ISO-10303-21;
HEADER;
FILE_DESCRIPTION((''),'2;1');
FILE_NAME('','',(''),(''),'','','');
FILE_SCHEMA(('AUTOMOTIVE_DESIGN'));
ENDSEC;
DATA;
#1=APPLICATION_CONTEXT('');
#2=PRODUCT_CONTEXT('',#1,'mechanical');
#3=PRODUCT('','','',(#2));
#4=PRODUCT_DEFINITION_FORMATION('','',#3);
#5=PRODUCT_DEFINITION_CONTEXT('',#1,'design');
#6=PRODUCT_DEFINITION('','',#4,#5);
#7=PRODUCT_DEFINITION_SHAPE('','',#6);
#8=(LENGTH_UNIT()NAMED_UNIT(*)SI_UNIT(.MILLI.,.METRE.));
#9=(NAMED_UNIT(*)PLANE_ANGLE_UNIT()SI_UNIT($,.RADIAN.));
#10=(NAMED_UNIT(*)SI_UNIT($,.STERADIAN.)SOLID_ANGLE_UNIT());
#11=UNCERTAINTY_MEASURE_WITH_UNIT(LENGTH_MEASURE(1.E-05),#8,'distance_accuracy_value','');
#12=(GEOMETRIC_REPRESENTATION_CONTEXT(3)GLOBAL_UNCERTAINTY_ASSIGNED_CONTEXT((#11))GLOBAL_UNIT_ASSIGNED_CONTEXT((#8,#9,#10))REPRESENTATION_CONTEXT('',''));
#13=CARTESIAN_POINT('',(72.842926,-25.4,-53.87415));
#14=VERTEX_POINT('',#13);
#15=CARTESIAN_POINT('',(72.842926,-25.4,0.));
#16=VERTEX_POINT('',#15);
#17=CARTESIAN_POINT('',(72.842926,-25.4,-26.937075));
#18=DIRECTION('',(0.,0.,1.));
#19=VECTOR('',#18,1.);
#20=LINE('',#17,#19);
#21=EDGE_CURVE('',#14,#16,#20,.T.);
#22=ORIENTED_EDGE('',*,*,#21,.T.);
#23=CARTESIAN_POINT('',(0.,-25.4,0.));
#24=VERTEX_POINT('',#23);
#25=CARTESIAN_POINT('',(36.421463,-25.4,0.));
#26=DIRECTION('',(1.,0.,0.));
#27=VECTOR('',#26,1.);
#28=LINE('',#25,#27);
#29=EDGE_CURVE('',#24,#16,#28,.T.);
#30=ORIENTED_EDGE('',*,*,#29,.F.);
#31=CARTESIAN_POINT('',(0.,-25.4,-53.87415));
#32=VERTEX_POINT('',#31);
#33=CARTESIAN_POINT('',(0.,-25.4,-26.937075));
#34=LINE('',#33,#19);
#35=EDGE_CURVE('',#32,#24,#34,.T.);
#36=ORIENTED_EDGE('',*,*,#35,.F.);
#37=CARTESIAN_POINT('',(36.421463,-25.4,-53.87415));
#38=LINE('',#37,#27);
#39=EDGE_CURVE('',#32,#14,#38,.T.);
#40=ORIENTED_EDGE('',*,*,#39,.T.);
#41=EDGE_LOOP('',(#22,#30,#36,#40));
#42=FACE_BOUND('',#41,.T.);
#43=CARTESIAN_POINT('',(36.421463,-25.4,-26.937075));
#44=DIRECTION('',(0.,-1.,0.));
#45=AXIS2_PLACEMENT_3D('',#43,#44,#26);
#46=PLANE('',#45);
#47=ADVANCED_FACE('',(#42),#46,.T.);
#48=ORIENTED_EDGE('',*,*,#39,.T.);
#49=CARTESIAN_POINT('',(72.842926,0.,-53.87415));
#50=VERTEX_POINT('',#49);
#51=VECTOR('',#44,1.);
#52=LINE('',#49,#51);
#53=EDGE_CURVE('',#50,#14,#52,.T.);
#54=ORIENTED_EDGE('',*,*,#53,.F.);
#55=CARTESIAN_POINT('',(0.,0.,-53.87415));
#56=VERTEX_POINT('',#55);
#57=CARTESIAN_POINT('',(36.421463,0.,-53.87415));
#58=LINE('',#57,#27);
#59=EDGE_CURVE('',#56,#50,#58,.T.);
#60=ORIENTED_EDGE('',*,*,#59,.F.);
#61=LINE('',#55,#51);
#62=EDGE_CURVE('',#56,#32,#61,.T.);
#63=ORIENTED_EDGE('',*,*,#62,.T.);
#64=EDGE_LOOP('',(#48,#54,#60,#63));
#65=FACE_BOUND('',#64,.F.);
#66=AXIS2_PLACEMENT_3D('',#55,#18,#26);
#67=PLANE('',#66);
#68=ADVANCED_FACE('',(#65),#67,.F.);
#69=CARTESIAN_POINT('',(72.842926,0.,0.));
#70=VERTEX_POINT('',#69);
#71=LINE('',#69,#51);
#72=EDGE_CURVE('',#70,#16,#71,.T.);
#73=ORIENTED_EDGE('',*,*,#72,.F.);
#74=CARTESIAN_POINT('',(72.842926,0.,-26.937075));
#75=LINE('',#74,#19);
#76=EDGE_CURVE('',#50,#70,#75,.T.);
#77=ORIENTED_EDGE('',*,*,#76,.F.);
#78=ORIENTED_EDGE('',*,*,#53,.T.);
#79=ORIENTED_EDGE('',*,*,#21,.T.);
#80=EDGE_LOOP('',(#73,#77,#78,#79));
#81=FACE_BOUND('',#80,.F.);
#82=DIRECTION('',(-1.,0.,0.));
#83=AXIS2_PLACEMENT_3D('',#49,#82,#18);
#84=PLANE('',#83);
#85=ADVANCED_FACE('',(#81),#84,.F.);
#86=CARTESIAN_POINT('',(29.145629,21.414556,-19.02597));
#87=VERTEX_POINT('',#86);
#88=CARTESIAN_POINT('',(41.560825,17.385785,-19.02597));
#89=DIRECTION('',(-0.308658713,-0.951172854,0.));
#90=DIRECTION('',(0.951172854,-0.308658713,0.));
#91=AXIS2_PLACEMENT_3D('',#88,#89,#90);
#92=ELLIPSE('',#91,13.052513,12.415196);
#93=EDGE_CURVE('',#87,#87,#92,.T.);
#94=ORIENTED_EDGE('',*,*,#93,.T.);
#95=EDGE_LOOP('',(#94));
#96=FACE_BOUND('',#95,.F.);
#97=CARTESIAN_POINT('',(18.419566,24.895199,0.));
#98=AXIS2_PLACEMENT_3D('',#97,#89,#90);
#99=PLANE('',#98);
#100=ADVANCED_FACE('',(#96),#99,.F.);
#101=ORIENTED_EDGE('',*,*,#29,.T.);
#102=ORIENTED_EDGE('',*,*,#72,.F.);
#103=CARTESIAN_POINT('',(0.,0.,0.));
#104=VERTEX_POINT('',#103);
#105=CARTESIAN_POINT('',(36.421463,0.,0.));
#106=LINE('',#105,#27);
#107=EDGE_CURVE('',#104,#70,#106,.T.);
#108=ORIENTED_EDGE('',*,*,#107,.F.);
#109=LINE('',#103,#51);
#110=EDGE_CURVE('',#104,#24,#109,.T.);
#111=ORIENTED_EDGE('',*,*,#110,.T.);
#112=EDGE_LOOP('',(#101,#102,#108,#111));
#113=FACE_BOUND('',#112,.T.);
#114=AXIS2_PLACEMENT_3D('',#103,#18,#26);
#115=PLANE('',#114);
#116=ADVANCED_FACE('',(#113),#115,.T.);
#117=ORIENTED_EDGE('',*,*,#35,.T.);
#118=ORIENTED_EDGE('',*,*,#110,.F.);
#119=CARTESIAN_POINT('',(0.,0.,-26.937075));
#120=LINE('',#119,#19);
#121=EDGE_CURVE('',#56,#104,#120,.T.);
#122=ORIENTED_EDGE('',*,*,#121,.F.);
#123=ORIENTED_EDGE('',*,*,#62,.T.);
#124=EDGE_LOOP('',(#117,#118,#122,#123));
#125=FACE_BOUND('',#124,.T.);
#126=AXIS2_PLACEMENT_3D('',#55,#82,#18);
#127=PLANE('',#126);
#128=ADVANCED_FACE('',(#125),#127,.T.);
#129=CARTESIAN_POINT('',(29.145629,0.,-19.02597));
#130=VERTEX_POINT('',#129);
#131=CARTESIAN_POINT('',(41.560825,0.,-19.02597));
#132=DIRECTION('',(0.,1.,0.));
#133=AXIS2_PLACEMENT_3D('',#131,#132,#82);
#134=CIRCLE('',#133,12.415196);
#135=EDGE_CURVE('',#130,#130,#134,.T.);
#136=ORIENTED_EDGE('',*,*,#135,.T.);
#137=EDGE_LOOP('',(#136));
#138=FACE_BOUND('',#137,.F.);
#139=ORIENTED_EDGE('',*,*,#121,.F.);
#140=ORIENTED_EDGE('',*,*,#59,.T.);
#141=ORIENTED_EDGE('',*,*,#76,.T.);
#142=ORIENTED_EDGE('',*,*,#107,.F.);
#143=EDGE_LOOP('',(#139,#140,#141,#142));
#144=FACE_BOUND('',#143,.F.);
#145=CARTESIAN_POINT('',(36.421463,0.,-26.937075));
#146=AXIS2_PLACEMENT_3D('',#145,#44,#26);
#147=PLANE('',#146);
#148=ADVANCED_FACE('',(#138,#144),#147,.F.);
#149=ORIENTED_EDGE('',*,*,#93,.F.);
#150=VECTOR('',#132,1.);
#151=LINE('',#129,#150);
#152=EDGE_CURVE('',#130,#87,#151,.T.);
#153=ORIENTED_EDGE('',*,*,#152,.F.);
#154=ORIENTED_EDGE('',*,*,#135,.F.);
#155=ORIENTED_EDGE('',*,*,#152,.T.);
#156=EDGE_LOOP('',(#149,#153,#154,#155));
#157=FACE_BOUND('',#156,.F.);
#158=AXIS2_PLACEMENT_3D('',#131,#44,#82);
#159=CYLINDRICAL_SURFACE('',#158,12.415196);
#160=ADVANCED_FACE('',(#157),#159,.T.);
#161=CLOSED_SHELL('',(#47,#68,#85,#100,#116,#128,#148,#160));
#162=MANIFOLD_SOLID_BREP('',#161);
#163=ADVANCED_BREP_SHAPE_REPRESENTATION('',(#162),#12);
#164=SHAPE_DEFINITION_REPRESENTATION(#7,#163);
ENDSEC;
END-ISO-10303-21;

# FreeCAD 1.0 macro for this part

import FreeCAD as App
import Part
import Sketcher

V = App.Vector

doc = App.newDocument("Part")
params = doc.addObject("Spreadsheet::Sheet", "Params")
for row, (alias, value) in enumerate([
    ("pad1_length", "1 in"),
    ("pad2_length", "1 in"),
    ("pocket1_length", "1.58 in"),
], start=1):
    params.set(f"A{row}", alias)
    params.set(f"B{row}", "=" + value)
    params.setAlias(f"B{row}", alias)

body = doc.addObject("PartDesign::Body", "Body")

# Sketch on XZ plane
sketch1 = body.newObject("Sketcher::SketchObject", "Sketch")
sketch1.AttachmentSupport = (doc.getObject("XZ_Plane"), [""])
sketch1.MapMode = "FlatFace"
sketch1.addGeometry([
    Part.LineSegment(V(0, 0, 0), V(0, -53.87415, 0)),
    Part.LineSegment(V(0, -53.87415, 0), V(72.842926, -53.87415, 0)),
    Part.LineSegment(V(72.842926, -53.87415, 0), V(72.842926, 0, 0)),
    Part.LineSegment(V(72.842926, 0, 0), V(0, 0, 0)),
], False)
sketch1.addConstraint([
    Sketcher.Constraint("Coincident", 0, 2, 1, 1),
    Sketcher.Constraint("Coincident", 1, 2, 2, 1),
    Sketcher.Constraint("Coincident", 2, 2, 3, 1),
    Sketcher.Constraint("Coincident", 3, 2, 0, 1),
    Sketcher.Constraint("Vertical", 0),
    Sketcher.Constraint("Horizontal", 1),
    Sketcher.Constraint("Vertical", 2),
    Sketcher.Constraint("Horizontal", 3),
    Sketcher.Constraint("Coincident", 3, 2, -1, 1),
    Sketcher.Constraint("DistanceY", 0, 2, 0, 1, 53.87415),
    Sketcher.Constraint("DistanceX", 1, 1, 1, 2, 72.842926),
])
pad1 = body.newObject("PartDesign::Pad", "Pad")
pad1.Profile = sketch1
pad1.setExpression("Length", "Params.pad1_length")

# Sketch on XZ plane
sketch2 = body.newObject("Sketcher::SketchObject", "Sketch001")
sketch2.AttachmentSupport = (doc.getObject("XZ_Plane"), [""])
sketch2.MapMode = "FlatFace"
sketch2.addGeometry(Part.Circle(V(41.560825, -19.02597, 0), V(0, 0, 1), 12.415196), False)
sketch2.addConstraint([
    Sketcher.Constraint("Diameter", 0, 24.830392),
    Sketcher.Constraint("DistanceY", 0, 3, -1, 1, 19.02597),
    Sketcher.Constraint("DistanceX", -1, 1, 0, 3, 41.560825),
])
pad2 = body.newObject("PartDesign::Pad", "Pad001")
pad2.Profile = sketch2
pad2.setExpression("Length", "Params.pad2_length")
pad2.Reversed = True

# Sketch on XY plane
sketch3 = body.newObject("Sketcher::SketchObject", "Sketch002")
sketch3.AttachmentSupport = (doc.getObject("XY_Plane"), [""])
sketch3.MapMode = "FlatFace"
sketch3.addGeometry([
    Part.LineSegment(V(61.878242, 30.363508, 0), V(18.419566, 24.895199, 0)),
    Part.LineSegment(V(18.419566, 24.895199, 0), V(61.878242, 10.792716, 0)),
    Part.LineSegment(V(61.878242, 10.792716, 0), V(61.878242, 30.363508, 0)),
], False)
sketch3.addConstraint([
    Sketcher.Constraint("Coincident", 0, 2, 1, 1),
    Sketcher.Constraint("Coincident", 1, 2, 2, 1),
    Sketcher.Constraint("Coincident", 2, 2, 0, 1),
    Sketcher.Constraint("Vertical", 2),
    Sketcher.Constraint("DistanceY", 2, 1, 2, 2, 19.570792),
    Sketcher.Constraint("DistanceY", -1, 1, 0, 2, 24.895199),
    Sketcher.Constraint("DistanceY", 0, 2, 2, 2, 5.468309),
    Sketcher.Constraint("Distance", 0, 43.801358),
    Sketcher.Constraint("DistanceX", -1, 1, 0, 2, 18.419566),
])
pocket1 = body.newObject("PartDesign::Pocket", "Pocket")
pocket1.Profile = sketch3
pocket1.setExpression("Length", "Params.pocket1_length")

doc.recompute()
